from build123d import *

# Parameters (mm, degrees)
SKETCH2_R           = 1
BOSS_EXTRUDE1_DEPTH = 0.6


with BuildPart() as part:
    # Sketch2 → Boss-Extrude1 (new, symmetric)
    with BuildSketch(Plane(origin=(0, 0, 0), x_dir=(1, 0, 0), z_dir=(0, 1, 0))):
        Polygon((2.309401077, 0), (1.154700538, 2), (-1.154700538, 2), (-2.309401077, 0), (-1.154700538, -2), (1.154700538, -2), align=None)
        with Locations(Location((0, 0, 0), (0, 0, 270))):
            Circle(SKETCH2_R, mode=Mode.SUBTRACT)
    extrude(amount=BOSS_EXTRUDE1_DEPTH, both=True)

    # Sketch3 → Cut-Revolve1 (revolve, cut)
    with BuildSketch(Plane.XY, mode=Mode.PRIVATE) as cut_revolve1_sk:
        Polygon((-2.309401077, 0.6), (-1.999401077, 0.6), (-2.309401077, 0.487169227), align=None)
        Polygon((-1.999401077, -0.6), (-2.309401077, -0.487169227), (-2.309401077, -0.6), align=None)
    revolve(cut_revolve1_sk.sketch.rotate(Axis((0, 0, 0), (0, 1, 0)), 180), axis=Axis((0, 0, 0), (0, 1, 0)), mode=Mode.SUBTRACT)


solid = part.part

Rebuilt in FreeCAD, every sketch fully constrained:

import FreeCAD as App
import Part
import Sketcher
from FreeCAD import Vector
Q = App.Units.Quantity


def add_polygon(sketch, points):
    """Adds a closed chain of lines whose ends are joined by coincident constraints."""
    first, n = sketch.GeometryCount, len(points)
    for a, b in zip(points, points[1:] + points[:1]):
        sketch.addGeometry(Part.LineSegment(App.Vector(*a, 0), App.Vector(*b, 0)), False)
    for i in range(n):
        sketch.addConstraint(Sketcher.Constraint("Coincident", first + i, 2, first + (i + 1) % n, 1))

doc = App.newDocument("Part")
params = doc.addObject("Spreadsheet::Sheet", "Params")
for row, (alias, value) in enumerate([
    ("sketch1_diameter", "2 mm"),
    ("pad1_length", "1.2 mm"),
    ("sketch2_width", "0.31 mm"),
    ("groove_angle", "360 deg"),
], start=1):
    params.set(f"A{row}", alias)
    params.set(f"B{row}", "=" + value)
    params.setAlias(f"B{row}", alias)

body = doc.addObject("PartDesign::Body", "Body")

sketch1 = body.newObject("Sketcher::SketchObject", "Sketch")
sketch1.AttachmentSupport = (doc.getObject("XZ_Plane"), [""])
sketch1.MapMode = "FlatFace"
add_polygon(sketch1, [(2.309401, 0), (1.154701, -2), (-1.154701, -2), (-2.309401, 0), (-1.154701, 2), (1.154701, 2)])
sketch1.addGeometry(Part.Circle(Vector(0, 0, 0), Vector(0, 0, 1), 1), False)
sketch1.addConstraint(Sketcher.Constraint("Horizontal", 1))
sketch1.addConstraint(Sketcher.Constraint("Horizontal", 4))
sketch1.addConstraint(Sketcher.Constraint("Coincident", 6, 3, -1, 1))
sketch1.addConstraint(Sketcher.Constraint("Symmetric", 0, 2, 3, 2, -1, 1))
sketch1.addConstraint(Sketcher.Constraint("Symmetric", 2, 2, 5, 2, -1, 1))
sketch1.addConstraint(Sketcher.Constraint("PointOnObject", 2, 2, -1))
sketch1.addConstraint(Sketcher.Constraint("Parallel", 2, 5))
sketch1.addConstraint(Sketcher.Constraint("Vertical", 1, 2, 3, 2))
sketch1.addConstraint(Sketcher.Constraint("Diameter", 6, Q("2 mm")))
sketch1.addConstraint(Sketcher.Constraint("Angle", 0, Q("-120 deg")))
sketch1.addConstraint(Sketcher.Constraint("DistanceY", 0, 2, -1, 1, Q("2 mm")))
sketch1.addConstraint(Sketcher.Constraint("DistanceX", 1, 2, 1, 1, Q("2.309401 mm")))
sketch1.setExpression("Constraints[14]", "Params.sketch1_diameter")
pad1 = body.newObject("PartDesign::Pad", "Pad")
pad1.Profile = sketch1
pad1.setExpression("Length", "Params.pad1_length")
pad1.Midplane = True

sketch2 = body.newObject("Sketcher::SketchObject", "Sketch001")
sketch2.AttachmentSupport = (doc.getObject("XY_Plane"), [""])
sketch2.MapMode = "FlatFace"
add_polygon(sketch2, [(-1.999401, 0.6), (-2.309401, 0.6), (-2.309401, 0.487169)])
add_polygon(sketch2, [(-1.999401, -0.6), (-2.309401, -0.487169), (-2.309401, -0.6)])
sketch2.addConstraint(Sketcher.Constraint("Horizontal", 0))
sketch2.addConstraint(Sketcher.Constraint("Vertical", 1))
sketch2.addConstraint(Sketcher.Constraint("Vertical", 4))
sketch2.addConstraint(Sketcher.Constraint("Horizontal", 5))
sketch2.addConstraint(Sketcher.Constraint("Symmetric", 1, 2, 3, 2, -1))
sketch2.addConstraint(Sketcher.Constraint("Symmetric", 2, 2, 5, 2, -1))
sketch2.addConstraint(Sketcher.Constraint("Angle", 2, Q("20 deg")))
sketch2.addConstraint(Sketcher.Constraint("DistanceX", 0, 2, 0, 1, Q("0.31 mm")))
sketch2.addConstraint(Sketcher.Constraint("DistanceY", -1, 1, 0, 2, Q("0.6 mm")))
sketch2.addConstraint(Sketcher.Constraint("DistanceX", 0, 2, -1, 1, Q("2.309401 mm")))
sketch2.setExpression("Constraints[13]", "Params.sketch2_width")
groove = body.newObject("PartDesign::Groove", "Groove")
groove.Profile = sketch2
groove.ReferenceAxis = (sketch2, ["V_Axis"])
groove.setExpression("Angle", "Params.groove_angle")

doc.recompute()
